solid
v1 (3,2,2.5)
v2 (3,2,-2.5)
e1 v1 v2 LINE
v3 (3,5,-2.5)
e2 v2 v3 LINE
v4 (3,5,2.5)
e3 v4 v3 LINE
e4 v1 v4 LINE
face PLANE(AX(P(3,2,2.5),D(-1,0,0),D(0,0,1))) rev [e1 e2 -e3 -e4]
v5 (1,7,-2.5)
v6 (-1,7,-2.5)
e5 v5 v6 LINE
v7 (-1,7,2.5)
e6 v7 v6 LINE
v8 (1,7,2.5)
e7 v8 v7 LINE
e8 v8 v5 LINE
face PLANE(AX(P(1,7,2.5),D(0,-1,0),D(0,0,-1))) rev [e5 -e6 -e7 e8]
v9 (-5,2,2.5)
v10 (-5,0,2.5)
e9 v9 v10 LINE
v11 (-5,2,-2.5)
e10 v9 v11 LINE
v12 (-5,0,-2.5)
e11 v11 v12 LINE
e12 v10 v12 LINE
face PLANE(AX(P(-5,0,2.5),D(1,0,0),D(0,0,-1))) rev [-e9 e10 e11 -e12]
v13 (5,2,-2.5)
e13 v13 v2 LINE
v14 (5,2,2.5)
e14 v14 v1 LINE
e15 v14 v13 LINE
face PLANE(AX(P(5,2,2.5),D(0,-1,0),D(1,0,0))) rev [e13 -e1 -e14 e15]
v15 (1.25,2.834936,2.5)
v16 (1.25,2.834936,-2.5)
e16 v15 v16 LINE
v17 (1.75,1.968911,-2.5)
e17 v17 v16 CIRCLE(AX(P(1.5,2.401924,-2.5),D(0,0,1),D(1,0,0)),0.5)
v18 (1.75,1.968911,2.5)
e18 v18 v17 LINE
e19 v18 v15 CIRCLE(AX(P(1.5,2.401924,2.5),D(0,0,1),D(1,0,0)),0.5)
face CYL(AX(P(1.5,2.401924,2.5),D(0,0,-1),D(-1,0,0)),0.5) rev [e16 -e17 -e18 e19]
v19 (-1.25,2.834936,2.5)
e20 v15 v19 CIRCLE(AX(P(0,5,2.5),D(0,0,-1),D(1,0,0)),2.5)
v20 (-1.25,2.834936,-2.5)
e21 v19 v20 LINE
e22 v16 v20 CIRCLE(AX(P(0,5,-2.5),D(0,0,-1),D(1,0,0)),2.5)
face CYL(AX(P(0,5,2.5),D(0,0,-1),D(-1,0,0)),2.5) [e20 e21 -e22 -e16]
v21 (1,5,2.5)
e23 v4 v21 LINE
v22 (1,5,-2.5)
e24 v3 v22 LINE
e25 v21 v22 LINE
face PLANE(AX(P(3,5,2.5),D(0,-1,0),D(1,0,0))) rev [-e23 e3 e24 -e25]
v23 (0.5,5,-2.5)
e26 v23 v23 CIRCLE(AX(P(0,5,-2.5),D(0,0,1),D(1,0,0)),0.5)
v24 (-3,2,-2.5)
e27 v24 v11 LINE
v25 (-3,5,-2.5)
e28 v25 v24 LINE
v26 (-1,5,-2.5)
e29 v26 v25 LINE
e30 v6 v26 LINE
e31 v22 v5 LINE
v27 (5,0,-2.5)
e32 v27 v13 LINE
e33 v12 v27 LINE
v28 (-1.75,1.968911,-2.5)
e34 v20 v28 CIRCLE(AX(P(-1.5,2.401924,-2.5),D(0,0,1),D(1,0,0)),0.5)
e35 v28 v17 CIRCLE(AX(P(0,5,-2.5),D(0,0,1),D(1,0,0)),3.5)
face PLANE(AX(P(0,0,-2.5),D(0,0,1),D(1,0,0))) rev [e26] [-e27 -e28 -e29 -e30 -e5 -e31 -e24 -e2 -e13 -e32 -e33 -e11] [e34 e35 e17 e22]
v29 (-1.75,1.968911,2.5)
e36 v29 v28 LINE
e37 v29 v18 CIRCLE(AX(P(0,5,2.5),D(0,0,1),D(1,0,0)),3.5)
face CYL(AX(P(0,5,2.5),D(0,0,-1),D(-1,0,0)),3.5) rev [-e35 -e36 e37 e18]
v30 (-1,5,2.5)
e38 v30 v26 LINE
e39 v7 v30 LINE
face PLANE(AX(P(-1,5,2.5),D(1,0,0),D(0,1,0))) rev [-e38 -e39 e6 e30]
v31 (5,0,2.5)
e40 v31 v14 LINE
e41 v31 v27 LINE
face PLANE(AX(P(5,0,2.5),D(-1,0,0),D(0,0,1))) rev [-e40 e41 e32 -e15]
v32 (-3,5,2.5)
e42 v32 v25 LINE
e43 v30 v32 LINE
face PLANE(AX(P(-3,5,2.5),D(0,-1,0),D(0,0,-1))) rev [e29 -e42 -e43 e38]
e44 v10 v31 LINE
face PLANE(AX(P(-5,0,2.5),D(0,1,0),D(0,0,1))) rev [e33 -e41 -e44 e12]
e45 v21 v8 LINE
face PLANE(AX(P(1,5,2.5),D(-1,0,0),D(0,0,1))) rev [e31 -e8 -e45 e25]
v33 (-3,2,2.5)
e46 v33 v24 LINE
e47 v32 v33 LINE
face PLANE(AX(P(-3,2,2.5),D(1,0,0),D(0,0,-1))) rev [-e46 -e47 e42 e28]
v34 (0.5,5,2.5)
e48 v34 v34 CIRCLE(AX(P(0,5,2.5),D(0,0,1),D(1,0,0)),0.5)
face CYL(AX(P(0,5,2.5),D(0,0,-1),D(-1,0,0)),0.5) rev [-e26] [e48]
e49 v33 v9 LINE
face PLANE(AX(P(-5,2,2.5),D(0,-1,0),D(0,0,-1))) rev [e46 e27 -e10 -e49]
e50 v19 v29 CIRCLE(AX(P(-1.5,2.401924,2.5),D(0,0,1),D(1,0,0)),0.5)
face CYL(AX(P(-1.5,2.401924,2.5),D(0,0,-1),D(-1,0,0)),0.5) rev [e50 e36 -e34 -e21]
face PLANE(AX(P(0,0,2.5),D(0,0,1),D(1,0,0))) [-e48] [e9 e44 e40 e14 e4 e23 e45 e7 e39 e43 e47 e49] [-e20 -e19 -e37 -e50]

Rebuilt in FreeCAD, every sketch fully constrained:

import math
import FreeCAD as App
import Part
import Sketcher
Q = App.Units.Quantity


def add_polygon(sketch, points):
    """Adds a closed chain of lines whose ends are joined by coincident constraints."""
    first, n = sketch.GeometryCount, len(points)
    for a, b in zip(points, points[1:] + points[:1]):
        sketch.addGeometry(Part.LineSegment(App.Vector(*a, 0), App.Vector(*b, 0)), False)
    for i in range(n):
        sketch.addConstraint(Sketcher.Constraint("Coincident", first + i, 2, first + (i + 1) % n, 1))

doc = App.newDocument("Part")
body = doc.addObject("PartDesign::Body", "Body")

# Sketch on XY plane
sketch1 = doc.addObject("Sketcher::SketchObject", "Sketch")
body.addObject(sketch1)
sketch1.AttachmentSupport = (doc.XY_Plane, [""])
sketch1.MapMode = "FlatFace"
add_polygon(sketch1, [(-5, 0), (5, 0), (5, 2), (3, 2), (3, 5), (1, 5), (1, 7), (-1, 7), (-1, 5), (-3, 5), (-3, 2), (-5, 2)])  # lines 0-11
sketch1.addGeometry(Part.ArcOfCircle(Part.Circle(App.Vector(0, 5, 0), App.Vector(0, 0, 1), 3.5), math.radians(-120), math.radians(-60)), False)  # 12
sketch1.addGeometry(Part.ArcOfCircle(Part.Circle(App.Vector(-1.5, 2.4, 0), App.Vector(0, 0, 1), 0.5), math.radians(60), math.radians(240)), False)  # 13
sketch1.addGeometry(Part.ArcOfCircle(Part.Circle(App.Vector(0, 5, 0), App.Vector(0, 0, 1), 2.5), math.radians(-120), math.radians(-60)), False)  # 14
sketch1.addGeometry(Part.ArcOfCircle(Part.Circle(App.Vector(1.5, 2.4, 0), App.Vector(0, 0, 1), 0.5), math.radians(-60), math.radians(120)), False)  # 15
sketch1.addGeometry(Part.Circle(App.Vector(0, 5, 0), App.Vector(0, 0, 1), 0.5), False)  # 16
sketch1.addConstraint([
    Sketcher.Constraint("Tangent", 12, 1, 13, 2),
    Sketcher.Constraint("Tangent", 13, 1, 14, 1),
    Sketcher.Constraint("Tangent", 14, 2, 15, 2),
    Sketcher.Constraint("Tangent", 15, 1, 12, 2),
    Sketcher.Constraint("Horizontal", 0),
    Sketcher.Constraint("Vertical", 1),
    Sketcher.Constraint("Horizontal", 2),
    Sketcher.Constraint("Vertical", 3),
    Sketcher.Constraint("Horizontal", 4),
    Sketcher.Constraint("Vertical", 5),
    Sketcher.Constraint("Horizontal", 6),
    Sketcher.Constraint("Vertical", 7),
    Sketcher.Constraint("Horizontal", 8),
    Sketcher.Constraint("Vertical", 9),
    Sketcher.Constraint("Horizontal", 10),
    Sketcher.Constraint("Vertical", 11),
    Sketcher.Constraint("Coincident", 14, 3, 12, 3),
    Sketcher.Constraint("Coincident", 16, 3, 12, 3),
    Sketcher.Constraint("Equal", 15, 16),
    Sketcher.Constraint("Symmetric", 0, 2, 11, 2, -1, 1),
    Sketcher.Constraint("Symmetric", 13, 3, 15, 3, -2),
    Sketcher.Constraint("Symmetric", 4, 2, 7, 2, -2),
    Sketcher.Constraint("Symmetric", 2, 2, 9, 2, -2),
    Sketcher.Constraint("Horizontal", 16, 3, 3, 2),
    Sketcher.Constraint("Equal", 2, 4),
    Sketcher.Constraint("Equal", 4, 6),
    Sketcher.Constraint("Equal", 10, 1),
    Sketcher.Constraint("Equal", 1, 5),
    Sketcher.Constraint("Diameter", 16, Q("1 mm")),
    Sketcher.Constraint("Radius", 12, Q("3.5 mm")),
    Sketcher.Constraint("DistanceX", 0, 1, 0, 2, Q("10 mm")),
    Sketcher.Constraint("DistanceY", 3, 1, 3, 2, Q("3 mm")),
    Sketcher.Constraint("DistanceX", 13, 3, 15, 3, Q("3 mm")),
])
pad1 = doc.addObject("PartDesign::Pad", "Pad")
body.addObject(pad1)
pad1.Profile = sketch1
pad1.Length = 5
pad1.Midplane = True

doc.recompute()
